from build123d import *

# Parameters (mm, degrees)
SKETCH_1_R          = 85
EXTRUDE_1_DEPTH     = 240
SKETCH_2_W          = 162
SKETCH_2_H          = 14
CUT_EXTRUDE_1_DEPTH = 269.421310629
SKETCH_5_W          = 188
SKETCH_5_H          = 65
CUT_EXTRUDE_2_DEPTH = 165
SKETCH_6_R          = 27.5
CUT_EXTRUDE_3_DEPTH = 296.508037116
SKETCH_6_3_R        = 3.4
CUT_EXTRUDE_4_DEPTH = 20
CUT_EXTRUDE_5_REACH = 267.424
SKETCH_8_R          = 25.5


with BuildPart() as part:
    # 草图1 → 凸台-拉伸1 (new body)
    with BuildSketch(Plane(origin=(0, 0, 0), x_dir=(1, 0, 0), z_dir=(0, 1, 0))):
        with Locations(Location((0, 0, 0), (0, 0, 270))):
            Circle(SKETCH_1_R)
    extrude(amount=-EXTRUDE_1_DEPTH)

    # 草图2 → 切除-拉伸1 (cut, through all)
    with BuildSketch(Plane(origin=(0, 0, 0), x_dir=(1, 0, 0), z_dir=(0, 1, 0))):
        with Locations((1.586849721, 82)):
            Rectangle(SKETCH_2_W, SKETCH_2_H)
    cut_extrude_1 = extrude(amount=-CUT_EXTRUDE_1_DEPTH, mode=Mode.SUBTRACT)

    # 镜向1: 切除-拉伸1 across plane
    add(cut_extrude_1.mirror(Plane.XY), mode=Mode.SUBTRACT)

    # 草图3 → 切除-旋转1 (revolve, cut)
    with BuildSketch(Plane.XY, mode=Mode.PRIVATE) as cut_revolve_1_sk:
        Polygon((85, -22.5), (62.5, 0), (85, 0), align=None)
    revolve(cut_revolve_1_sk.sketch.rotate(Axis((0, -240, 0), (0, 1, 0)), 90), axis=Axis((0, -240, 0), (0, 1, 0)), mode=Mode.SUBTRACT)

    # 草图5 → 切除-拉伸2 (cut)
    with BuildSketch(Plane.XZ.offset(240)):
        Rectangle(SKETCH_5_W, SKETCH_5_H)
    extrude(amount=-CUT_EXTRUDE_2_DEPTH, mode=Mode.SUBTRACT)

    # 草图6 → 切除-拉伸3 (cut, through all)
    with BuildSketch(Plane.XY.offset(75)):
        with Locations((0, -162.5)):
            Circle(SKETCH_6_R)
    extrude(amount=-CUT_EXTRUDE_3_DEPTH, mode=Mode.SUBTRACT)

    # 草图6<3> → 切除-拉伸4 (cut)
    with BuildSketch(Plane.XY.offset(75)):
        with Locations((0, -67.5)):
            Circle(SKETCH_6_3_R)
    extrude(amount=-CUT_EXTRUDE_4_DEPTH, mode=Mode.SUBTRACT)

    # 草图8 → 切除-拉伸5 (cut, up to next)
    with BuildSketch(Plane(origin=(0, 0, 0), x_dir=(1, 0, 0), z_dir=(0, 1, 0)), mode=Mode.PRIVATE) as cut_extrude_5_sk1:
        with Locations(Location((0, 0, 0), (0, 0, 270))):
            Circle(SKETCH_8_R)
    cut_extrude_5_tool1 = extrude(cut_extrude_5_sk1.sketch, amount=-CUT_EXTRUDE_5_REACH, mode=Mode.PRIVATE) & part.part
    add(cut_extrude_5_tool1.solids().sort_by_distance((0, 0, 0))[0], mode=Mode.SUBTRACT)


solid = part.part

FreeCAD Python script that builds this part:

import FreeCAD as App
import Part
import Sketcher
from FreeCAD import Vector
Q = App.Units.Quantity

doc = App.newDocument("Part")
params = doc.addObject("Spreadsheet::Sheet", "Params")
for row, (alias, value) in enumerate([
    ("sketch1_diameter", "170 mm"),
    ("pad1_length", "240 mm"),
    ("sketch2_width", "162 mm"),
    ("sketch2_height", "14 mm"),
    ("sketch3_width", "22.5 mm"),
    ("groove_angle", "360 deg"),
    ("sketch4_width", "188 mm"),
    ("sketch4_height", "65 mm"),
    ("pocket2_length", "165 mm"),
    ("sketch5_diameter", "55 mm"),
    ("sketch6_diameter", "6.8 mm"),
    ("pocket4_length", "20 mm"),
    ("sketch7_diameter", "51 mm"),
], start=1):
    params.set(f"A{row}", alias)
    params.set(f"B{row}", "=" + value)
    params.setAlias(f"B{row}", alias)

body = doc.addObject("PartDesign::Body", "Body")

sketch1 = doc.addObject("Sketcher::SketchObject", "Sketch")
body.addObject(sketch1)
sketch1.AttachmentSupport = (doc.XZ_Plane, [""])
sketch1.MapMode = "FlatFace"
sketch1.addGeometry(Part.Circle(Vector(0, 0, 0), Vector(0, 0, 1), 85), False)
sketch1.addConstraint(Sketcher.Constraint("Coincident", 0, 3, -1, 1))
sketch1.addConstraint(Sketcher.Constraint("Diameter", 0, Q("170 mm")))
sketch1.setExpression("Constraints[1]", "Params.sketch1_diameter")
pad1 = doc.addObject("PartDesign::Pad", "Pad")
body.addObject(pad1)
pad1.Profile = sketch1
pad1.setExpression("Length", "Params.pad1_length")

sketch2 = doc.addObject("Sketcher::SketchObject", "Sketch001")
body.addObject(sketch2)
sketch2.AttachmentSupport = (doc.XZ_Plane, [""])
sketch2.MapMode = "FlatFace"
sketch2.addGeometry(Part.LineSegment(Vector(-79, -89, 0), Vector(-79, -75, 0)), False)
sketch2.addGeometry(Part.LineSegment(Vector(-79, -75, 0), Vector(83, -75, 0)), False)
sketch2.addGeometry(Part.LineSegment(Vector(83, -75, 0), Vector(83, -89, 0)), False)
sketch2.addGeometry(Part.LineSegment(Vector(83, -89, 0), Vector(-79, -89, 0)), False)
sketch2.addConstraint(Sketcher.Constraint("Coincident", 0, 2, 1, 1))
sketch2.addConstraint(Sketcher.Constraint("Coincident", 1, 2, 2, 1))
sketch2.addConstraint(Sketcher.Constraint("Coincident", 2, 2, 3, 1))
sketch2.addConstraint(Sketcher.Constraint("Coincident", 3, 2, 0, 1))
sketch2.addConstraint(Sketcher.Constraint("Vertical", 0))
sketch2.addConstraint(Sketcher.Constraint("Horizontal", 1))
sketch2.addConstraint(Sketcher.Constraint("Vertical", 2))
sketch2.addConstraint(Sketcher.Constraint("Horizontal", 3))
sketch2.addConstraint(Sketcher.Constraint("DistanceX", 1, 1, 1, 2, Q("162 mm")))
sketch2.addConstraint(Sketcher.Constraint("DistanceY", 0, 1, 0, 2, Q("14 mm")))
sketch2.addConstraint(Sketcher.Constraint("DistanceY", 0, 2, -1, 1, Q("75 mm")))
sketch2.addConstraint(Sketcher.Constraint("DistanceX", 0, 2, -1, 1, Q("79.41315 mm")))
sketch2.setExpression("Constraints[8]", "Params.sketch2_width")
sketch2.setExpression("Constraints[9]", "Params.sketch2_height")
pocket1 = doc.addObject("PartDesign::Pocket", "Pocket")
body.addObject(pocket1)
pocket1.Profile = sketch2
pocket1.Type = "ThroughAll"
pocket1.Reversed = True
doc.recompute()

mirrored = doc.addObject("PartDesign::Mirrored", "Mirrored")
body.addObject(mirrored)
mirrored.Originals = [pocket1]
mirrored.MirrorPlane = (doc.XY_Plane, [""])
body.Tip = mirrored

sketch3 = doc.addObject("Sketcher::SketchObject", "Sketch002")
body.addObject(sketch3)
sketch3.AttachmentSupport = (doc.XY_Plane, [""])
sketch3.MapMode = "FlatFace"
sketch3.addGeometry(Part.LineSegment(Vector(62, 0, 0), Vector(85, -22, 0)), False)
sketch3.addGeometry(Part.LineSegment(Vector(85, -22, 0), Vector(85, 0, 0)), False)
sketch3.addGeometry(Part.LineSegment(Vector(85, 0, 0), Vector(62, 0, 0)), False)
sketch3.addConstraint(Sketcher.Constraint("Coincident", 0, 2, 1, 1))
sketch3.addConstraint(Sketcher.Constraint("Coincident", 1, 2, 2, 1))
sketch3.addConstraint(Sketcher.Constraint("Coincident", 2, 2, 0, 1))
sketch3.addConstraint(Sketcher.Constraint("Vertical", 1))
sketch3.addConstraint(Sketcher.Constraint("Horizontal", 2))
sketch3.addConstraint(Sketcher.Constraint("PointOnObject", 1, 2, -1))
sketch3.addConstraint(Sketcher.Constraint("Equal", 2, 1))
sketch3.addConstraint(Sketcher.Constraint("DistanceX", 2, 2, 2, 1, Q("22.5 mm")))
sketch3.addConstraint(Sketcher.Constraint("DistanceX", -1, 1, 0, 2, Q("85 mm")))
sketch3.setExpression("Constraints[7]", "Params.sketch3_width")
groove = doc.addObject("PartDesign::Groove", "Groove")
body.addObject(groove)
groove.Profile = sketch3
groove.ReferenceAxis = (sketch3, ["V_Axis"])
groove.setExpression("Angle", "Params.groove_angle")

sketch4 = doc.addObject("Sketcher::SketchObject", "Sketch003")
body.addObject(sketch4)
sketch4.AttachmentSupport = (doc.XZ_Plane, [""])
sketch4.MapMode = "FlatFace"
sketch4.AttachmentOffset = App.Placement(Vector(0, 0, 240), App.Rotation())
sketch4.addGeometry(Part.LineSegment(Vector(-94, 32, 0), Vector(-94, -32, 0)), False)
sketch4.addGeometry(Part.LineSegment(Vector(-94, -32, 0), Vector(94, -32, 0)), False)
sketch4.addGeometry(Part.LineSegment(Vector(94, -32, 0), Vector(94, 32, 0)), False)
sketch4.addGeometry(Part.LineSegment(Vector(94, 32, 0), Vector(-94, 32, 0)), False)
sketch4.addConstraint(Sketcher.Constraint("Coincident", 0, 2, 1, 1))
sketch4.addConstraint(Sketcher.Constraint("Coincident", 1, 2, 2, 1))
sketch4.addConstraint(Sketcher.Constraint("Coincident", 2, 2, 3, 1))
sketch4.addConstraint(Sketcher.Constraint("Coincident", 3, 2, 0, 1))
sketch4.addConstraint(Sketcher.Constraint("Vertical", 0))
sketch4.addConstraint(Sketcher.Constraint("Horizontal", 1))
sketch4.addConstraint(Sketcher.Constraint("Vertical", 2))
sketch4.addConstraint(Sketcher.Constraint("Horizontal", 3))
sketch4.addConstraint(Sketcher.Constraint("Symmetric", 0, 2, 2, 2, -1, 1))
sketch4.addConstraint(Sketcher.Constraint("DistanceX", 1, 1, 1, 2, Q("188 mm")))
sketch4.addConstraint(Sketcher.Constraint("DistanceY", 0, 2, 0, 1, Q("65 mm")))
sketch4.setExpression("Constraints[9]", "Params.sketch4_width")
sketch4.setExpression("Constraints[10]", "Params.sketch4_height")
pocket2 = doc.addObject("PartDesign::Pocket", "Pocket001")
body.addObject(pocket2)
pocket2.Profile = sketch4
pocket2.setExpression("Length", "Params.pocket2_length")

sketch5 = doc.addObject("Sketcher::SketchObject", "Sketch004")
body.addObject(sketch5)
sketch5.AttachmentSupport = (doc.XY_Plane, [""])
sketch5.MapMode = "FlatFace"
sketch5.AttachmentOffset = App.Placement(Vector(0, 0, 75), App.Rotation())
sketch5.addGeometry(Part.Circle(Vector(0, -162, 0), Vector(0, 0, 1), 28), False)
sketch5.addConstraint(Sketcher.Constraint("PointOnObject", 0, 3, -2))
sketch5.addConstraint(Sketcher.Constraint("Diameter", 0, Q("55 mm")))
sketch5.addConstraint(Sketcher.Constraint("DistanceY", 0, 3, -1, 1, Q("162.5 mm")))
sketch5.setExpression("Constraints[1]", "Params.sketch5_diameter")
pocket3 = doc.addObject("PartDesign::Pocket", "Pocket002")
body.addObject(pocket3)
pocket3.Profile = sketch5
pocket3.Type = "ThroughAll"

sketch6 = doc.addObject("Sketcher::SketchObject", "Sketch005")
body.addObject(sketch6)
sketch6.AttachmentSupport = (doc.XY_Plane, [""])
sketch6.MapMode = "FlatFace"
sketch6.AttachmentOffset = App.Placement(Vector(0, 0, 75), App.Rotation())
sketch6.addGeometry(Part.Circle(Vector(0, -67.5, 0), Vector(0, 0, 1), 3.4), False)
sketch6.addConstraint(Sketcher.Constraint("PointOnObject", 0, 3, -2))
sketch6.addConstraint(Sketcher.Constraint("Diameter", 0, Q("6.8 mm")))
sketch6.addConstraint(Sketcher.Constraint("DistanceY", 0, 3, -1, 1, Q("67.5 mm")))
sketch6.setExpression("Constraints[1]", "Params.sketch6_diameter")
pocket4 = doc.addObject("PartDesign::Pocket", "Pocket003")
body.addObject(pocket4)
pocket4.Profile = sketch6
pocket4.setExpression("Length", "Params.pocket4_length")

sketch7 = doc.addObject("Sketcher::SketchObject", "Sketch006")
body.addObject(sketch7)
sketch7.AttachmentSupport = (doc.XZ_Plane, [""])
sketch7.MapMode = "FlatFace"
sketch7.addGeometry(Part.Circle(Vector(0, 0, 0), Vector(0, 0, 1), 26), False)
sketch7.addConstraint(Sketcher.Constraint("Coincident", 0, 3, -1, 1))
sketch7.addConstraint(Sketcher.Constraint("Diameter", 0, Q("51 mm")))
sketch7.setExpression("Constraints[1]", "Params.sketch7_diameter")
pocket5 = doc.addObject("PartDesign::Pocket", "Pocket004")
body.addObject(pocket5)
pocket5.Profile = sketch7
pocket5.Type = "UpToFirst"
pocket5.Reversed = True

doc.recompute()
